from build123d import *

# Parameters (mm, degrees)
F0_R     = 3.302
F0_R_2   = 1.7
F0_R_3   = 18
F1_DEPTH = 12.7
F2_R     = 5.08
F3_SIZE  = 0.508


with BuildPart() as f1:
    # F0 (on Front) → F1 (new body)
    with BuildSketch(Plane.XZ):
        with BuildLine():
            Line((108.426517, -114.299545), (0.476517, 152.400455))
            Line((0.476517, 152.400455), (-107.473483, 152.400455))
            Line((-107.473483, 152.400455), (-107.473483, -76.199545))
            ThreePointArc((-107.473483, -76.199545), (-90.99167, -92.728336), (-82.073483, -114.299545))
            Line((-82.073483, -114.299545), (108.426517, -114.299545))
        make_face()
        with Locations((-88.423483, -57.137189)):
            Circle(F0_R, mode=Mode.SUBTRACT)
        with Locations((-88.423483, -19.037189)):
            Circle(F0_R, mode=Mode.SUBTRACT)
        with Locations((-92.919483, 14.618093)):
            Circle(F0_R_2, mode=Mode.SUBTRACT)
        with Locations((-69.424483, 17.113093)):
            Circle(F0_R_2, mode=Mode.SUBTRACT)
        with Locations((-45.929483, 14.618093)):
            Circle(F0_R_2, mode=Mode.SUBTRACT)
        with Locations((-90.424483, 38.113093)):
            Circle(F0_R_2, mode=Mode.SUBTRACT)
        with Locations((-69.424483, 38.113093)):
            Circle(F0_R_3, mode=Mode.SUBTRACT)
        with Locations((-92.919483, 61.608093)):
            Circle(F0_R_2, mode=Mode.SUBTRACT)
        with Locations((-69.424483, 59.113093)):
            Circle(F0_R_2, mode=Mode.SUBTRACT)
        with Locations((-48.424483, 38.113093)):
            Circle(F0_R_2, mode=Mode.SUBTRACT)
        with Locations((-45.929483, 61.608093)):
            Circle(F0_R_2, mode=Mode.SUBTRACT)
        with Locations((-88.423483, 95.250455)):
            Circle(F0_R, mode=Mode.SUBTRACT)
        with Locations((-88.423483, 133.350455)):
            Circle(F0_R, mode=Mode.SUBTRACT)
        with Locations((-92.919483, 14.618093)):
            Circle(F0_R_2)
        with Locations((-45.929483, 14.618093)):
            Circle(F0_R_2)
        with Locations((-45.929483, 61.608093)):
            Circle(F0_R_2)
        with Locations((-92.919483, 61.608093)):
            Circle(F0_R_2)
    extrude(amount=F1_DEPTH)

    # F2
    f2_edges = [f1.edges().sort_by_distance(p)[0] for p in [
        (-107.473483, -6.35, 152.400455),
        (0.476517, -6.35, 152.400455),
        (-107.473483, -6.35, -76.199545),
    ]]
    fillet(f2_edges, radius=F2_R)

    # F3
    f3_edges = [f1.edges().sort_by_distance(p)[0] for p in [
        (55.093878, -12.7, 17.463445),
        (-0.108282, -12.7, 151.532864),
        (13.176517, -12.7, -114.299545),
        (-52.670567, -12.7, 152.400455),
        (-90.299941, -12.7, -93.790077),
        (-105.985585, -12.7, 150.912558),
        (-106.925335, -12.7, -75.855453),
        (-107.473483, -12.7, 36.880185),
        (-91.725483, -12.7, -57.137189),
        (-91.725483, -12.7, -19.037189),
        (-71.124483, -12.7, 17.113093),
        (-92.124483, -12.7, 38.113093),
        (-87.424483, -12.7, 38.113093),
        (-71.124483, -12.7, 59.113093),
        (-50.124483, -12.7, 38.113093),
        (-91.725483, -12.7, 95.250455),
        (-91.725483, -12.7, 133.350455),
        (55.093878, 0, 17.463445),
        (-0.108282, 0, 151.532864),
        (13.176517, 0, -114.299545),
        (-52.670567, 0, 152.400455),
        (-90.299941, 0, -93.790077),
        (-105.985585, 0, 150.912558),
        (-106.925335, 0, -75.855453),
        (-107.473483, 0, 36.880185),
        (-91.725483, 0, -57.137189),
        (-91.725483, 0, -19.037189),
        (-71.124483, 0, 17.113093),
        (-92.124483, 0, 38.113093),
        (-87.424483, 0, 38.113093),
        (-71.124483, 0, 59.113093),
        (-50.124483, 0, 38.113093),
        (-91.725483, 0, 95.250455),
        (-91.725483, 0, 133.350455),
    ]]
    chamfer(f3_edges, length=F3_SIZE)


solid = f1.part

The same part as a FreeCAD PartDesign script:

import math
import FreeCAD as App
import Part
import Sketcher

V = App.Vector
Q = App.Units.Quantity


def edges_at(feature, points):
    """Names of the edges that pass closest to the given points."""
    edges = feature.Shape.Edges
    near = lambda p: min(range(len(edges)), key=lambda i: edges[i].distToShape(Part.Vertex(*p))[0])
    return sorted({f"Edge{near(p) + 1}" for p in points})

doc = App.newDocument("Part")
params = doc.addObject("Spreadsheet::Sheet", "Params")
for row, (alias, value) in enumerate([
    ("sketch1_diameter", "0.26 in"),
    ("sketch1_height", "9 in"),
    ("sketch1_width", "7.5 in"),
    ("sketch1_width2", "4.25 in"),
    ("pad1_length", "0.5 in"),
    ("fillet_radius", "0.2 in"),
    ("chamfer_size", "0.02 in"),
], start=1):
    params.set(f"A{row}", alias)
    params.set(f"B{row}", "=" + value)
    params.setAlias(f"B{row}", alias)

body = doc.addObject("PartDesign::Body", "Body")

# Sketch on XZ plane
sketch1 = doc.addObject("Sketcher::SketchObject", "Sketch")
body.addObject(sketch1)
sketch1.AttachmentSupport = (doc.XZ_Plane, [""])
sketch1.MapMode = "FlatFace"
sketch1.addGeometry([
    Part.LineSegment(V(108.4, -114.3, 0), V(0.5, 152.4, 0)),  # 0
    Part.LineSegment(V(0.5, 152.4, 0), V(-107.5, 152.4, 0)),  # 1
    Part.LineSegment(V(-107.5, 152.4, 0), V(-107.5, -76.2, 0)),  # 2
    Part.ArcOfCircle(Part.Circle(V(-140.9, -126, 0), V(0, 0, 1), 59.9), math.radians(11), math.radians(56)),  # 3
    Part.LineSegment(V(-82.1, -114.3, 0), V(108.4, -114.3, 0)),  # 4
    Part.Circle(V(-88.4, -57.1, 0), V(0, 0, 1), 3.3),  # 5
    Part.Circle(V(-88.4, -19, 0), V(0, 0, 1), 3.3),  # 6
    Part.Circle(V(-69.4, 17.1, 0), V(0, 0, 1), 1.7),  # 7
    Part.Circle(V(-90.4, 38.1, 0), V(0, 0, 1), 1.7),  # 8
    Part.Circle(V(-88.4, 95.3, 0), V(0, 0, 1), 3.3),  # 9
    Part.Circle(V(-88.4, 133.4, 0), V(0, 0, 1), 3.3),  # 10
    Part.Circle(V(-69.4, 38.1, 0), V(0, 0, 1), 18),  # 11
    Part.Circle(V(-69.4, 59.1, 0), V(0, 0, 1), 1.7),  # 12
    Part.Circle(V(-48.4, 38.1, 0), V(0, 0, 1), 1.7),  # 13
], False)
sketch1.addConstraint([
    Sketcher.Constraint("Coincident", 0, 2, 1, 1),
    Sketcher.Constraint("Coincident", 1, 2, 2, 1),
    Sketcher.Constraint("Coincident", 2, 2, 3, 2),
    Sketcher.Constraint("Coincident", 3, 1, 4, 1),
    Sketcher.Constraint("Coincident", 4, 2, 0, 1),
    Sketcher.Constraint("Horizontal", 1),
    Sketcher.Constraint("Vertical", 2),
    Sketcher.Constraint("Horizontal", 4),
    Sketcher.Constraint("Equal", 5, 6),
    Sketcher.Constraint("Equal", 7, 8),
    Sketcher.Constraint("Equal", 6, 9),
    Sketcher.Constraint("Equal", 9, 10),
    Sketcher.Constraint("Equal", 8, 12),
    Sketcher.Constraint("Equal", 12, 13),
    Sketcher.Constraint("Horizontal", 8, 3, 11, 3),
    Sketcher.Constraint("Horizontal", 11, 3, 13, 3),
    Sketcher.Constraint("Vertical", 5, 3, 6, 3),
    Sketcher.Constraint("Vertical", 6, 3, 9, 3),
    Sketcher.Constraint("Vertical", 9, 3, 10, 3),
    Sketcher.Constraint("Vertical", 7, 3, 11, 3),
    Sketcher.Constraint("Vertical", 11, 3, 12, 3),
    Sketcher.Constraint("Diameter", 5, Q("0.26 in")),
    Sketcher.Constraint("DistanceY", 2, 2, 2, 1, Q("9 in")),
    Sketcher.Constraint("DistanceX", 4, 1, 4, 2, Q("7.5 in")),
    Sketcher.Constraint("DistanceX", 2, 2, 3, 1, Q("1 in")),
    Sketcher.Constraint("DistanceX", 1, 2, 1, 1, Q("4.25 in")),
    Sketcher.Constraint("DistanceY", 5, 3, 6, 3, Q("1.5 in")),
    Sketcher.Constraint("DistanceY", 9, 3, 10, 3, Q("1.5 in")),
    Sketcher.Constraint("DistanceX", 10, 3, 0, 2, Q("3.5 in")),
    Sketcher.Constraint("DistanceY", 3, 1, 2, 2, Q("1.5 in")),
    Sketcher.Constraint("Diameter", 7, 3.4),
    Sketcher.Constraint("Diameter", 11, 36.0),
    Sketcher.Constraint("DistanceY", 10, 3, 0, 2, Q("0.75 in")),
    Sketcher.Constraint("Radius", 3, 59.937324),
    Sketcher.Constraint("DistanceX", 6, 3, 7, 3, 18.999),
    Sketcher.Constraint("DistanceX", 8, 3, 7, 3, 21.0),
    Sketcher.Constraint("DistanceY", 7, 3, 8, 3, 21.0),
    Sketcher.Constraint("DistanceY", 11, 3, 12, 3, 21.0),
    Sketcher.Constraint("DistanceX", 11, 3, 13, 3, 21.0),
    Sketcher.Constraint("DistanceX", 3, 3, -1, 1, 140.862538),
    Sketcher.Constraint("DistanceY", 3, 3, -1, 1, 125.975582),
    Sketcher.Constraint("DistanceY", 5, 3, -1, 1, 57.137189),
    Sketcher.Constraint("DistanceY", 5, 3, 7, 3, 74.250282),
])
sketch1.setExpression("Constraints[21]", "Params.sketch1_diameter")
sketch1.setExpression("Constraints[22]", "Params.sketch1_height")
sketch1.setExpression("Constraints[23]", "Params.sketch1_width")
sketch1.setExpression("Constraints[25]", "Params.sketch1_width2")
pad1 = doc.addObject("PartDesign::Pad", "Pad")
body.addObject(pad1)
pad1.Profile = sketch1
pad1.setExpression("Length", "Params.pad1_length")
doc.recompute()

fillet = doc.addObject("PartDesign::Fillet", "Fillet")
body.addObject(fillet)
fillet.Base = (pad1, edges_at(pad1, [(-107.473, -6.35, 152.4), (0.477, -6.35, 152.4), (-107.473, -6.35, -76.2)]))
fillet.setExpression("Radius", "Params.fillet_radius")
doc.recompute()

chamfer = doc.addObject("PartDesign::Chamfer", "Chamfer")
body.addObject(chamfer)
chamfer.Base = (fillet, edges_at(fillet, [
    (55.094, -12.7, 17.463),
    (-0.108, -12.7, 151.533),
    (13.177, -12.7, -114.3),
    (-52.671, -12.7, 152.4),
    (-90.3, -12.7, -93.79),
    (-105.986, -12.7, 150.913),
    (-106.925, -12.7, -75.855),
    (-107.473, -12.7, 36.88),
    (-91.725, -12.7, -57.137),
    (-91.725, -12.7, -19.037),
    (-71.124, -12.7, 17.113),
    (-92.124, -12.7, 38.113),
    (-87.424, -12.7, 38.113),
    (-71.124, -12.7, 59.113),
    (-50.124, -12.7, 38.113),
    (-91.725, -12.7, 95.25),
    (-91.725, -12.7, 133.35),
    (55.094, 0, 17.463),
    (-0.108, 0, 151.533),
    (13.177, 0, -114.3),
    (-52.671, 0, 152.4),
    (-90.3, 0, -93.79),
    (-105.986, 0, 150.913),
    (-106.925, 0, -75.855),
    (-107.473, 0, 36.88),
    (-91.725, 0, -57.137),
    (-91.725, 0, -19.037),
    (-71.124, 0, 17.113),
    (-92.124, 0, 38.113),
    (-87.424, 0, 38.113),
    (-71.124, 0, 59.113),
    (-50.124, 0, 38.113),
    (-91.725, 0, 95.25),
    (-91.725, 0, 133.35),
]))
chamfer.setExpression("Size", "Params.chamfer_size")

doc.recompute()
